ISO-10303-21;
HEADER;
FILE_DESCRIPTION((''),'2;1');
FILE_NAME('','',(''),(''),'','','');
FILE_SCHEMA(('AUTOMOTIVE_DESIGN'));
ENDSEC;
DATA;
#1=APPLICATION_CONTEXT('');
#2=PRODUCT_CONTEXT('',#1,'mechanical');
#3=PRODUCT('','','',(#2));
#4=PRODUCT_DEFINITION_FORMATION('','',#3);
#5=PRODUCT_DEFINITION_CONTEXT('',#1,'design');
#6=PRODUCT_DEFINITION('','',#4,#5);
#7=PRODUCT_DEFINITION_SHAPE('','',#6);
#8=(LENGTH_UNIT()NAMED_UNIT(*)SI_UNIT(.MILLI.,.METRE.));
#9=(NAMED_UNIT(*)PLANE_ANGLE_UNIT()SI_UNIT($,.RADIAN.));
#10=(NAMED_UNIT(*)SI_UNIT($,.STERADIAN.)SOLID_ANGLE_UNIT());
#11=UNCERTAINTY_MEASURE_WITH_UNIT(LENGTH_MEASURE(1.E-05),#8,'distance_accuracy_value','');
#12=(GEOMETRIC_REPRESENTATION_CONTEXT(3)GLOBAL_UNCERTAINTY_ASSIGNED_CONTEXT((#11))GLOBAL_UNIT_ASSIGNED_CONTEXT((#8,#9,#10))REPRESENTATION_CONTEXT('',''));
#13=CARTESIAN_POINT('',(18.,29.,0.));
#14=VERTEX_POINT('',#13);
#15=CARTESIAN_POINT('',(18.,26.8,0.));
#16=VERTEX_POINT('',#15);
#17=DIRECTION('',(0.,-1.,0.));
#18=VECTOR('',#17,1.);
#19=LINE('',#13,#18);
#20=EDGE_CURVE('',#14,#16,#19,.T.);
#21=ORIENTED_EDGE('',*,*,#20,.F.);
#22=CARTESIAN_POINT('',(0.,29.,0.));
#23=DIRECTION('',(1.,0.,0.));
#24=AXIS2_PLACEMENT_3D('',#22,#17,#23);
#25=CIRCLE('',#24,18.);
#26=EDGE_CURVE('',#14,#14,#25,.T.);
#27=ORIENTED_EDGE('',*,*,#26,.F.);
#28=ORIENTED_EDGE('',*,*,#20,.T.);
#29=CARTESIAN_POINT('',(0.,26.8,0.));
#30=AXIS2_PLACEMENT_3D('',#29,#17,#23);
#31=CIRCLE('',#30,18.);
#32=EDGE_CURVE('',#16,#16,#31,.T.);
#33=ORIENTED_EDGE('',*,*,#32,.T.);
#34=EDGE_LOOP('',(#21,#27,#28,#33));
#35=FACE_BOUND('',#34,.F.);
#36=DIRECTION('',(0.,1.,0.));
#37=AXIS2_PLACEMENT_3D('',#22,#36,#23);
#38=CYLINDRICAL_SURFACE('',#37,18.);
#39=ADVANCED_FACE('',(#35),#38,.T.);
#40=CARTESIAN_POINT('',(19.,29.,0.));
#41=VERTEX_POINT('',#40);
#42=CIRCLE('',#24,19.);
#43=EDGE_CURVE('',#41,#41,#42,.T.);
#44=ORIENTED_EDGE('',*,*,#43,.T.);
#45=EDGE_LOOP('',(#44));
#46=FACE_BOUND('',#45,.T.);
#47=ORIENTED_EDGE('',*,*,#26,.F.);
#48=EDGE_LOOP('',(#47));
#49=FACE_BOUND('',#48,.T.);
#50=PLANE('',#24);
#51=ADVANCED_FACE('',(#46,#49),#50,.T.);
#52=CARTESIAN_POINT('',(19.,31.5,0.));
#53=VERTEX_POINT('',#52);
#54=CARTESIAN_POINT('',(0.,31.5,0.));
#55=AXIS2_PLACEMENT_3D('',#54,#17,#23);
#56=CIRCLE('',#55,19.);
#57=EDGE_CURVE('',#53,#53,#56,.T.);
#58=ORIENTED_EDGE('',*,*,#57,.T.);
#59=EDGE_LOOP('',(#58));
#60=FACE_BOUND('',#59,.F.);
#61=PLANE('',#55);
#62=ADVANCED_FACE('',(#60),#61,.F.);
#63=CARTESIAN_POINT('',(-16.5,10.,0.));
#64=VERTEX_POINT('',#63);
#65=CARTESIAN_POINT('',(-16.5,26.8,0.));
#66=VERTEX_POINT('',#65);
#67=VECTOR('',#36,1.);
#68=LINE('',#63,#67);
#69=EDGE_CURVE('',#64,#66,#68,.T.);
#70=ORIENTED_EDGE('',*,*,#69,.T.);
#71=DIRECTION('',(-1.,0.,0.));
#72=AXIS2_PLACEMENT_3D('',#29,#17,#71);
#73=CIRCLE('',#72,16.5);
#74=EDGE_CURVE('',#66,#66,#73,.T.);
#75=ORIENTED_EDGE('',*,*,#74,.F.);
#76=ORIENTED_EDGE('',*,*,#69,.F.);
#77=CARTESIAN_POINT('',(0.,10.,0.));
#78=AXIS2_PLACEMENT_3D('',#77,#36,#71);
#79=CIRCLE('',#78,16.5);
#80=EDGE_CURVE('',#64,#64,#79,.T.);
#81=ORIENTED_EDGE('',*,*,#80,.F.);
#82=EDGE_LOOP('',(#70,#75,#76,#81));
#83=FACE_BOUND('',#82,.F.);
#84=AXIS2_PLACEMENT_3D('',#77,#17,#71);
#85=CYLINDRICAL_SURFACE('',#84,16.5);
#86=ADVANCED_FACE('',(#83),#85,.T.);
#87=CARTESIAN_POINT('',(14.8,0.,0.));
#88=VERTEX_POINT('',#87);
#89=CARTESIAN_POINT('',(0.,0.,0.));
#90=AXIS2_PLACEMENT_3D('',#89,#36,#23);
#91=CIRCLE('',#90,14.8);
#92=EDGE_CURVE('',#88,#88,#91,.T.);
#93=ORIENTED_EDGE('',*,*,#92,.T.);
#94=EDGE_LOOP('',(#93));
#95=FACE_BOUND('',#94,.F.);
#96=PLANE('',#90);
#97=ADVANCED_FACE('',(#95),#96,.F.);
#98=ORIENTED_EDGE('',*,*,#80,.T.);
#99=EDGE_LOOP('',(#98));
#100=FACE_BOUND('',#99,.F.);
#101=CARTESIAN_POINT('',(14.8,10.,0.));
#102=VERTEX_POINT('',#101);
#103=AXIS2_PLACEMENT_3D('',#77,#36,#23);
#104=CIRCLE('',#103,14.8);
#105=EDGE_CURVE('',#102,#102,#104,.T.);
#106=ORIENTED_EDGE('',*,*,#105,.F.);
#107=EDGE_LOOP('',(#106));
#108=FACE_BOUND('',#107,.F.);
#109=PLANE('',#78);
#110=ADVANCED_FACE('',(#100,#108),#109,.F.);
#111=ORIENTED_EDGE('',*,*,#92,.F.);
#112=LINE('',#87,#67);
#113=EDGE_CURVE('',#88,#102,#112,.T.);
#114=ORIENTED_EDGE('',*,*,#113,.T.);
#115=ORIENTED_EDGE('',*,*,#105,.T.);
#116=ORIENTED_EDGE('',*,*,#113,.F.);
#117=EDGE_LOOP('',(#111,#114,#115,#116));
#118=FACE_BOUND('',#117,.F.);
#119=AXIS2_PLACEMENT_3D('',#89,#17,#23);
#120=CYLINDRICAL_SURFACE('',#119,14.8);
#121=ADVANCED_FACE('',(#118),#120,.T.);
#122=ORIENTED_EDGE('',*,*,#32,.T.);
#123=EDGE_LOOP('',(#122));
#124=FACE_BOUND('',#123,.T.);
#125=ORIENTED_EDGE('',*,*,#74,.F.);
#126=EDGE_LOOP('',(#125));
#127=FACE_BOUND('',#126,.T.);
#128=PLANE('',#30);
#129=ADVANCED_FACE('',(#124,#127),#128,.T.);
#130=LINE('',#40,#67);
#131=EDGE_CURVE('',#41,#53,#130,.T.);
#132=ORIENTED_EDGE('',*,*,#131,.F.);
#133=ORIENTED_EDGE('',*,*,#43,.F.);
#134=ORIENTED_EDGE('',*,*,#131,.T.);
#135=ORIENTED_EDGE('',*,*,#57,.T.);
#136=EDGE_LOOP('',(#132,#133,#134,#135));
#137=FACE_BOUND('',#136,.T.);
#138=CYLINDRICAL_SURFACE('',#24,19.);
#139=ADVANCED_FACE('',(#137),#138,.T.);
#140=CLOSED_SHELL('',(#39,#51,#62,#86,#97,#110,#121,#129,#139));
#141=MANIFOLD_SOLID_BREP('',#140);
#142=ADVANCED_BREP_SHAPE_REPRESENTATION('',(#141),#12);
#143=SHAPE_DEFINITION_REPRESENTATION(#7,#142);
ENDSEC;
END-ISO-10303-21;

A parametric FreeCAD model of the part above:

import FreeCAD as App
import Part
import Sketcher

V = App.Vector
Q = App.Units.Quantity

doc = App.newDocument("Part")
body = doc.addObject("PartDesign::Body", "Body")

# Sketch on XZ plane
sketch1 = doc.addObject("Sketcher::SketchObject", "Sketch")
body.addObject(sketch1)
sketch1.AttachmentSupport = (doc.XZ_Plane, [""])
sketch1.MapMode = "FlatFace"
sketch1.addGeometry(Part.Circle(V(0, 0, 0), V(0, 0, 1), 15), False)
sketch1.addConstraint([
    Sketcher.Constraint("Coincident", 0, 3, -1, 1),
    Sketcher.Constraint("Diameter", 0, Q("29.6 mm")),
])
pad1 = doc.addObject("PartDesign::Pad", "Pad")
body.addObject(pad1)
pad1.Profile = sketch1
pad1.Length = 10
pad1.Reversed = True

# Sketch on XZ plane
sketch2 = doc.addObject("Sketcher::SketchObject", "Sketch001")
body.addObject(sketch2)
sketch2.AttachmentSupport = (doc.XZ_Plane, [""])
sketch2.MapMode = "FlatFace"
sketch2.AttachmentOffset = App.Placement(V(0, 0, -10), App.Rotation())
sketch2.addGeometry(Part.Circle(V(0, 0, 0), V(0, 0, 1), 16), False)
sketch2.addConstraint([
    Sketcher.Constraint("Coincident", 0, 3, -1, 1),
    Sketcher.Constraint("Diameter", 0, Q("33 mm")),
])
pad2 = doc.addObject("PartDesign::Pad", "Pad001")
body.addObject(pad2)
pad2.Profile = sketch2
pad2.Length = 19
pad2.Reversed = True

# Sketch on XZ plane
sketch3 = doc.addObject("Sketcher::SketchObject", "Sketch002")
body.addObject(sketch3)
sketch3.AttachmentSupport = (doc.XZ_Plane, [""])
sketch3.MapMode = "FlatFace"
sketch3.AttachmentOffset = App.Placement(V(0, 0, -29), App.Rotation())
sketch3.addGeometry(Part.Circle(V(0, 0, 0), V(0, 0, 1), 19), False)
sketch3.addConstraint([
    Sketcher.Constraint("Coincident", 0, 3, -1, 1),
    Sketcher.Constraint("Diameter", 0, Q("38 mm")),
])
pad3 = doc.addObject("PartDesign::Pad", "Pad002")
body.addObject(pad3)
pad3.Profile = sketch3
pad3.Length = 2.5
pad3.Reversed = True

# Sketch on XZ plane
sketch4 = doc.addObject("Sketcher::SketchObject", "Sketch003")
body.addObject(sketch4)
sketch4.AttachmentSupport = (doc.XZ_Plane, [""])
sketch4.MapMode = "FlatFace"
sketch4.AttachmentOffset = App.Placement(V(0, 0, -29), App.Rotation())
sketch4.addGeometry(Part.Circle(V(0, 0, 0), V(0, 0, 1), 18), False)
sketch4.addConstraint([
    Sketcher.Constraint("Coincident", 0, 3, -1, 1),
    Sketcher.Constraint("Diameter", 0, Q("36 mm")),
])
pad4 = doc.addObject("PartDesign::Pad", "Pad003")
body.addObject(pad4)
pad4.Profile = sketch4
pad4.Length = 2.2

doc.recompute()
